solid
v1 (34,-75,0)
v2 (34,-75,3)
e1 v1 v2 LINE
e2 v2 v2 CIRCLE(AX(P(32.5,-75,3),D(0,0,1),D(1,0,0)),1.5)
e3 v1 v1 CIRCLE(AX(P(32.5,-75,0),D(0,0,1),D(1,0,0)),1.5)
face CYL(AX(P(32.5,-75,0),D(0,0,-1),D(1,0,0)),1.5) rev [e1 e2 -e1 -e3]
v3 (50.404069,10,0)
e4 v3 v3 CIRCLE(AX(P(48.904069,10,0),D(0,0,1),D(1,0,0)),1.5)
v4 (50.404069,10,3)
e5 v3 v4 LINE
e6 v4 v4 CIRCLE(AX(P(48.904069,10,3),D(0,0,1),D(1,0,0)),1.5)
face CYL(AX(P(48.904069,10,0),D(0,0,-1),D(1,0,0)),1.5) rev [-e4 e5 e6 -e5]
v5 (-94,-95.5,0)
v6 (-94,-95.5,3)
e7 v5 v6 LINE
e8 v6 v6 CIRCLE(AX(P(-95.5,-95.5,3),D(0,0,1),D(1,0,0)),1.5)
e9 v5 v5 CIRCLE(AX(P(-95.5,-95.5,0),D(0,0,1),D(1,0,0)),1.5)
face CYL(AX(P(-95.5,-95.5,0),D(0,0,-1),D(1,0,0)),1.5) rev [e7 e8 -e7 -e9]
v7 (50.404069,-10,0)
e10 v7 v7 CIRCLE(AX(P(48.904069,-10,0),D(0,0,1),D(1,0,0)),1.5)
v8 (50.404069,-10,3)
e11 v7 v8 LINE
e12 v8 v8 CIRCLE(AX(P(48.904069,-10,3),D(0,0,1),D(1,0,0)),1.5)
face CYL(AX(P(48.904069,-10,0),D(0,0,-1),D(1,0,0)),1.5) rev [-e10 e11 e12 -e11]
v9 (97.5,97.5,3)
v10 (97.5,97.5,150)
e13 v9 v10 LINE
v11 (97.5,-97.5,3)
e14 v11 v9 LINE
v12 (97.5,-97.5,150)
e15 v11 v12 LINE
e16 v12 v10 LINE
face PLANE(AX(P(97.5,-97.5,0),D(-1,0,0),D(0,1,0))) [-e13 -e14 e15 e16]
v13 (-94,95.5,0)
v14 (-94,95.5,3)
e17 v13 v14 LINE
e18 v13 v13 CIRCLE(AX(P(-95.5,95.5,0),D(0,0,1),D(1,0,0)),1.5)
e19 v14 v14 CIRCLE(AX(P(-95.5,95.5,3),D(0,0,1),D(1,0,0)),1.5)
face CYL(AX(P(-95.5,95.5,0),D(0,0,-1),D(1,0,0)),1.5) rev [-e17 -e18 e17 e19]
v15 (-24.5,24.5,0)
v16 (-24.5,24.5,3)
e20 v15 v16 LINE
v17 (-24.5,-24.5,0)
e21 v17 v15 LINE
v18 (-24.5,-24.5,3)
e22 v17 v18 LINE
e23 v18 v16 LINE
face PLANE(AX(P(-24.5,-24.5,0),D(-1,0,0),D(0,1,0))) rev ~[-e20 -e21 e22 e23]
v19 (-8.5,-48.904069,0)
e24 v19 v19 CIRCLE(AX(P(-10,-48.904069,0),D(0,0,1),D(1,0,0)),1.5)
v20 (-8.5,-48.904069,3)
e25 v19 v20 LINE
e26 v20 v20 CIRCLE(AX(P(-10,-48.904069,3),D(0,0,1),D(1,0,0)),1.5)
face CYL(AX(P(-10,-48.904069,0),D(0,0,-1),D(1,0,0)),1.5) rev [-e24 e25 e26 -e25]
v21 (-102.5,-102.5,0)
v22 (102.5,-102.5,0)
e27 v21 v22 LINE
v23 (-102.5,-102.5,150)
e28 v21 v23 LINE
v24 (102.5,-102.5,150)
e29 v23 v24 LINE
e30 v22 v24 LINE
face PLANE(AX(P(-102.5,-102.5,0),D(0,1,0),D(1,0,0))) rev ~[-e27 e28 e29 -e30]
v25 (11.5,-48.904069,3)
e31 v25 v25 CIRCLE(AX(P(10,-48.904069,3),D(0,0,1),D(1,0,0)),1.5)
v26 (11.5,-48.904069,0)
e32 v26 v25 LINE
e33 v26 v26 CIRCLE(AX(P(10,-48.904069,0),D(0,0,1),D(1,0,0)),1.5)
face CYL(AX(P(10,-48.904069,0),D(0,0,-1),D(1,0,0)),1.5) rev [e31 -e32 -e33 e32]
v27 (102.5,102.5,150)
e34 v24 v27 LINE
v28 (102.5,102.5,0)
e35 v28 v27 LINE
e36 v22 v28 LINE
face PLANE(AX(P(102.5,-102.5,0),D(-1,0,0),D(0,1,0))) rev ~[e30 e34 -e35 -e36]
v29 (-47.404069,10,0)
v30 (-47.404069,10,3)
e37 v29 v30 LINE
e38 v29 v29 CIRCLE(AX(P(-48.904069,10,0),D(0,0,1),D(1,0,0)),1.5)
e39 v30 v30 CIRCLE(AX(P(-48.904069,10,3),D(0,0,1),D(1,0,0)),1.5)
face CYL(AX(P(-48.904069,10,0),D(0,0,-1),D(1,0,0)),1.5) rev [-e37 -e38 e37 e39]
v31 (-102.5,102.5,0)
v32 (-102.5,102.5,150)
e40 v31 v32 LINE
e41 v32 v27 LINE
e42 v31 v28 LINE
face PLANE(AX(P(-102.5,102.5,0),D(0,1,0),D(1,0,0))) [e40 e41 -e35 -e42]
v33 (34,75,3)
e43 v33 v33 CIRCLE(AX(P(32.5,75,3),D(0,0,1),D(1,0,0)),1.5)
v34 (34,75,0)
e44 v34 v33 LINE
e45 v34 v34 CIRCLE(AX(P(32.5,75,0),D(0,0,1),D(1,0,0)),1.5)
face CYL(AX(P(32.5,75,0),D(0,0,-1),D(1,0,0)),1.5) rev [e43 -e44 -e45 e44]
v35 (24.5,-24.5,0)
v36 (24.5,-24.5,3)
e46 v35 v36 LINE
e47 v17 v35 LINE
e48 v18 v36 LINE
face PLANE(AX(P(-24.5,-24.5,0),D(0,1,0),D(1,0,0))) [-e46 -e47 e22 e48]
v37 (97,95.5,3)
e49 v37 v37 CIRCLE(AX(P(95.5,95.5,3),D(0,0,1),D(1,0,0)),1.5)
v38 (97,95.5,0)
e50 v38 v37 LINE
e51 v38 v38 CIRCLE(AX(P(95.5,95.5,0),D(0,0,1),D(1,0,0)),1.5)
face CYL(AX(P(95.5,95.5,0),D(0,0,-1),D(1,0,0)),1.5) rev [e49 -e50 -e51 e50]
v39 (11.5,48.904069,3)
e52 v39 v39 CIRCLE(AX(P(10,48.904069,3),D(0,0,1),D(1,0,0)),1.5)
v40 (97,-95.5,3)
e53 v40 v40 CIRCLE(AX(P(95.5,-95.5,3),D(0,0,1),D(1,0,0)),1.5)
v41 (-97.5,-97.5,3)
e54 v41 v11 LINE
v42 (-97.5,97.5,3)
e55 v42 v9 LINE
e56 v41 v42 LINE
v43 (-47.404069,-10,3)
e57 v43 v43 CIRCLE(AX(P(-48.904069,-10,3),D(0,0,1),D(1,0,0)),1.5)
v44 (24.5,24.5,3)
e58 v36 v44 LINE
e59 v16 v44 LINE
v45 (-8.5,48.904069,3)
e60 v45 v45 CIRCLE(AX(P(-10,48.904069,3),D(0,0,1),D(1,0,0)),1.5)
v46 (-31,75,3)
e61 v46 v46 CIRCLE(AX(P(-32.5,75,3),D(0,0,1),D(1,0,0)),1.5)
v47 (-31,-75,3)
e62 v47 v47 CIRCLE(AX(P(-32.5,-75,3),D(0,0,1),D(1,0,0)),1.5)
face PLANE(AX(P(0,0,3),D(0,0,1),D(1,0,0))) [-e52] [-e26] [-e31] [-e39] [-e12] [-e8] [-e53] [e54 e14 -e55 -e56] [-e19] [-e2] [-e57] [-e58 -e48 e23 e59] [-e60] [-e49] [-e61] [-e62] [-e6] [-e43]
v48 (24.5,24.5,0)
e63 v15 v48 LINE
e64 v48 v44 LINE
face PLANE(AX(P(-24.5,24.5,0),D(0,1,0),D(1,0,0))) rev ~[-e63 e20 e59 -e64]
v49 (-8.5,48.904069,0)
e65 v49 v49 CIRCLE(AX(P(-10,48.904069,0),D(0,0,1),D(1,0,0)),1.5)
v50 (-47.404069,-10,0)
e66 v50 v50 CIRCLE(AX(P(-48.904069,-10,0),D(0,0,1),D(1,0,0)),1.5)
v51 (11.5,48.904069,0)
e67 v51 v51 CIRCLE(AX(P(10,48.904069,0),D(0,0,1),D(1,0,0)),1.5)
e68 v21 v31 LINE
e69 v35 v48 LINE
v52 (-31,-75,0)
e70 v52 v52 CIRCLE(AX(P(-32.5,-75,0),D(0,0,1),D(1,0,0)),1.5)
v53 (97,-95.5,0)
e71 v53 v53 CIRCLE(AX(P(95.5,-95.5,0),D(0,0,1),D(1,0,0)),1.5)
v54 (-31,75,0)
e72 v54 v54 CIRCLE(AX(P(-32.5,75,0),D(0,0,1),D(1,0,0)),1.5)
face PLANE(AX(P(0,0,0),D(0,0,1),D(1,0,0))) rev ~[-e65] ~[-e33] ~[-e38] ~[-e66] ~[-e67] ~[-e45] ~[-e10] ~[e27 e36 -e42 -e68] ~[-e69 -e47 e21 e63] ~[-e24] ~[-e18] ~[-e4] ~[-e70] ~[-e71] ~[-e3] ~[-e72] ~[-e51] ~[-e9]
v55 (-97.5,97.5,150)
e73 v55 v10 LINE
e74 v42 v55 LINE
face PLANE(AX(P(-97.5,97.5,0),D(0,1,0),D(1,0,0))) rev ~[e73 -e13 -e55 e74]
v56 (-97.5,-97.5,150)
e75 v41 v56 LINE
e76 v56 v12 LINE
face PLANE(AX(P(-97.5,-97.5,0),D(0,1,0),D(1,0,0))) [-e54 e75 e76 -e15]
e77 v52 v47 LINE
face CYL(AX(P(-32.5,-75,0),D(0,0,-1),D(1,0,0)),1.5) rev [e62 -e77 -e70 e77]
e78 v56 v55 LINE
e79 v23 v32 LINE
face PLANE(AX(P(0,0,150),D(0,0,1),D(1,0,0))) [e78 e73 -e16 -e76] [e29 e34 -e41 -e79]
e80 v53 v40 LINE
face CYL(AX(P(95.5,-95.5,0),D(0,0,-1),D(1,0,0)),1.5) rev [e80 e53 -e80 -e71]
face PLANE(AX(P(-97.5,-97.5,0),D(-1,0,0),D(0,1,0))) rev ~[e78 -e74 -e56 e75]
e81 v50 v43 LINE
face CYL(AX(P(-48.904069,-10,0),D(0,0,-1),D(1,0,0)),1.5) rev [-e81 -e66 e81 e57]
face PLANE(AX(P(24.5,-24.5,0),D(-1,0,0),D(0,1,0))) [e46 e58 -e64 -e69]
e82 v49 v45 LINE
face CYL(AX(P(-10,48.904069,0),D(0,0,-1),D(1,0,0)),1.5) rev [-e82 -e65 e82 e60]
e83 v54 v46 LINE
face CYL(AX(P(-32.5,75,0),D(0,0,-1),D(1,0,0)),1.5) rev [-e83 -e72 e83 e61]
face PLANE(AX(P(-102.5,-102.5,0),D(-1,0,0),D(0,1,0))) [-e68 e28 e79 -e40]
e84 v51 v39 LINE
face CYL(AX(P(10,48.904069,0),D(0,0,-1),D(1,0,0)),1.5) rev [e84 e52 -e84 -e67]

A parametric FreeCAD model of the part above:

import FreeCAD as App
import Part
import Sketcher
from FreeCAD import Vector
Q = App.Units.Quantity


def add_polygon(sketch, points):
    """Adds a closed chain of lines whose ends are joined by coincident constraints."""
    first, n = sketch.GeometryCount, len(points)
    for a, b in zip(points, points[1:] + points[:1]):
        sketch.addGeometry(Part.LineSegment(App.Vector(*a, 0), App.Vector(*b, 0)), False)
    for i in range(n):
        sketch.addConstraint(Sketcher.Constraint("Coincident", first + i, 2, first + (i + 1) % n, 1))

doc = App.newDocument("Part")
body = doc.addObject("PartDesign::Body", "Body")

sketch1 = body.newObject("Sketcher::SketchObject", "Sketch")
sketch1.AttachmentSupport = (doc.getObject("XY_Plane"), [""])
sketch1.MapMode = "FlatFace"
add_polygon(sketch1, [(-102, 102), (-102, -102), (102, -102), (102, 102)])
add_polygon(sketch1, [(98, -98), (-98, -98), (-98, 98), (98, 98)])
sketch1.addConstraint(Sketcher.Constraint("Vertical", 0))
sketch1.addConstraint(Sketcher.Constraint("Horizontal", 1))
sketch1.addConstraint(Sketcher.Constraint("Vertical", 2))
sketch1.addConstraint(Sketcher.Constraint("Horizontal", 3))
sketch1.addConstraint(Sketcher.Constraint("Horizontal", 4))
sketch1.addConstraint(Sketcher.Constraint("Vertical", 5))
sketch1.addConstraint(Sketcher.Constraint("Horizontal", 6))
sketch1.addConstraint(Sketcher.Constraint("Vertical", 7))
sketch1.addConstraint(Sketcher.Constraint("Symmetric", 0, 2, 2, 2, -1, 1))
sketch1.addConstraint(Sketcher.Constraint("Symmetric", 4, 2, 6, 2, -1, 1))
sketch1.addConstraint(Sketcher.Constraint("Equal", 3, 0))
sketch1.addConstraint(Sketcher.Constraint("Equal", 6, 5))
sketch1.addConstraint(Sketcher.Constraint("DistanceX", 1, 1, 1, 2, Q("205 mm")))
sketch1.addConstraint(Sketcher.Constraint("DistanceX", 4, 2, 4, 1, Q("195 mm")))
pad1 = body.newObject("PartDesign::Pad", "Pad")
pad1.Profile = sketch1
pad1.Length = 150

sketch2 = body.newObject("Sketcher::SketchObject", "Sketch001")
sketch2.AttachmentSupport = (doc.getObject("XY_Plane"), [""])
sketch2.MapMode = "FlatFace"
add_polygon(sketch2, [(-97.5, 97.5), (-97.5, -97.5), (97.5, -97.5), (97.5, 97.5)])
sketch2.addGeometry(Part.Circle(Vector(-95.5, -95.5, 0), Vector(0, 0, 1), 1.5), False)
sketch2.addGeometry(Part.Circle(Vector(-32.5, -75, 0), Vector(0, 0, 1), 1.5), False)
sketch2.addGeometry(Part.Circle(Vector(-10, -48.9, 0), Vector(0, 0, 1), 1.5), False)
sketch2.addGeometry(Part.Circle(Vector(-48.9, -10, 0), Vector(0, 0, 1), 1.5), False)
sketch2.addGeometry(Part.Circle(Vector(32.5, -75, 0), Vector(0, 0, 1), 1.5), False)
sketch2.addGeometry(Part.Circle(Vector(10, -48.9, 0), Vector(0, 0, 1), 1.5), False)
sketch2.addGeometry(Part.Circle(Vector(95.5, -95.5, 0), Vector(0, 0, 1), 1.5), False)
sketch2.addGeometry(Part.Circle(Vector(48.9, -10, 0), Vector(0, 0, 1), 1.5), False)
sketch2.addGeometry(Part.Circle(Vector(-48.9, 10, 0), Vector(0, 0, 1), 1.5), False)
sketch2.addGeometry(Part.Circle(Vector(-95.5, 95.5, 0), Vector(0, 0, 1), 1.5), False)
sketch2.addGeometry(Part.Circle(Vector(-10, 48.9, 0), Vector(0, 0, 1), 1.5), False)
sketch2.addGeometry(Part.Circle(Vector(-32.5, 75, 0), Vector(0, 0, 1), 1.5), False)
add_polygon(sketch2, [(24.5, -24.5), (-24.5, -24.5), (-24.5, 24.5), (24.5, 24.5)])
sketch2.addGeometry(Part.Circle(Vector(48.9, 10, 0), Vector(0, 0, 1), 1.5), False)
sketch2.addGeometry(Part.Circle(Vector(10, 48.9, 0), Vector(0, 0, 1), 1.5), False)
sketch2.addGeometry(Part.Circle(Vector(32.5, 75, 0), Vector(0, 0, 1), 1.5), False)
sketch2.addGeometry(Part.Circle(Vector(95.5, 95.5, 0), Vector(0, 0, 1), 1.5), False)
sketch2.addConstraint(Sketcher.Constraint("Vertical", 0))
sketch2.addConstraint(Sketcher.Constraint("Horizontal", 1))
sketch2.addConstraint(Sketcher.Constraint("Vertical", 2))
sketch2.addConstraint(Sketcher.Constraint("Horizontal", 3))
sketch2.addConstraint(Sketcher.Constraint("Horizontal", 16))
sketch2.addConstraint(Sketcher.Constraint("Vertical", 17))
sketch2.addConstraint(Sketcher.Constraint("Horizontal", 18))
sketch2.addConstraint(Sketcher.Constraint("Vertical", 19))
sketch2.addConstraint(Sketcher.Constraint("Equal", 4, 5))
sketch2.addConstraint(Sketcher.Constraint("Equal", 5, 6))
sketch2.addConstraint(Sketcher.Constraint("Equal", 6, 7))
sketch2.addConstraint(Sketcher.Constraint("Equal", 7, 8))
sketch2.addConstraint(Sketcher.Constraint("Equal", 8, 9))
sketch2.addConstraint(Sketcher.Constraint("Equal", 9, 10))
sketch2.addConstraint(Sketcher.Constraint("Equal", 10, 11))
sketch2.addConstraint(Sketcher.Constraint("Equal", 11, 12))
sketch2.addConstraint(Sketcher.Constraint("Equal", 12, 13))
sketch2.addConstraint(Sketcher.Constraint("Equal", 13, 14))
sketch2.addConstraint(Sketcher.Constraint("Equal", 14, 15))
sketch2.addConstraint(Sketcher.Constraint("Equal", 15, 20))
sketch2.addConstraint(Sketcher.Constraint("Equal", 20, 21))
sketch2.addConstraint(Sketcher.Constraint("Equal", 21, 22))
sketch2.addConstraint(Sketcher.Constraint("Equal", 22, 23))
sketch2.addConstraint(Sketcher.Constraint("Symmetric", 11, 3, 12, 3, -1, 1))
sketch2.addConstraint(Sketcher.Constraint("Symmetric", 10, 3, 13, 3, -1, 1))
sketch2.addConstraint(Sketcher.Constraint("Symmetric", 9, 3, 14, 3, -1, 1))
sketch2.addConstraint(Sketcher.Constraint("Symmetric", 8, 3, 15, 3, -1, 1))
sketch2.addConstraint(Sketcher.Constraint("Symmetric", 7, 3, 20, 3, -1, 1))
sketch2.addConstraint(Sketcher.Constraint("Symmetric", 6, 3, 21, 3, -1, 1))
sketch2.addConstraint(Sketcher.Constraint("Symmetric", 5, 3, 22, 3, -1, 1))
sketch2.addConstraint(Sketcher.Constraint("Symmetric", 4, 3, 23, 3, -1, 1))
sketch2.addConstraint(Sketcher.Constraint("Symmetric", 0, 2, 2, 2, -1, 1))
sketch2.addConstraint(Sketcher.Constraint("Symmetric", 16, 2, 18, 2, -1, 1))
sketch2.addConstraint(Sketcher.Constraint("Symmetric", 5, 3, 8, 3, -2))
sketch2.addConstraint(Sketcher.Constraint("Symmetric", 6, 3, 9, 3, -2))
sketch2.addConstraint(Sketcher.Constraint("Symmetric", 4, 3, 10, 3, -2))
sketch2.addConstraint(Sketcher.Constraint("Symmetric", 7, 3, 11, 3, -2))
sketch2.addConstraint(Sketcher.Constraint("Equal", 3, 0))
sketch2.addConstraint(Sketcher.Constraint("Equal", 18, 17))
sketch2.addConstraint(Sketcher.Constraint("Diameter", 4, Q("3 mm")))
sketch2.addConstraint(Sketcher.Constraint("DistanceX", 1, 1, 1, 2, Q("195 mm")))
sketch2.addConstraint(Sketcher.Constraint("DistanceX", 16, 2, 16, 1, Q("49 mm")))
sketch2.addConstraint(Sketcher.Constraint("DistanceY", 5, 3, -1, 1, Q("75 mm")))
sketch2.addConstraint(Sketcher.Constraint("DistanceX", 6, 3, -1, 1, Q("10 mm")))
sketch2.addConstraint(Sketcher.Constraint("DistanceY", 7, 3, -1, 1, Q("10 mm")))
sketch2.addConstraint(Sketcher.Constraint("DistanceX", 4, 3, 5, 3, Q("63 mm")))
sketch2.addConstraint(Sketcher.Constraint("DistanceX", 5, 3, 8, 3, Q("65 mm")))
sketch2.addConstraint(Sketcher.Constraint("DistanceY", 0, 2, 4, 3, Q("2 mm")))
sketch2.addConstraint(Sketcher.Constraint("DistanceY", 6, 3, -1, 1, Q("48.904069 mm")))
sketch2.addConstraint(Sketcher.Constraint("DistanceX", 7, 3, -1, 1, Q("48.904069 mm")))
pad2 = body.newObject("PartDesign::Pad", "Pad001")
pad2.Profile = sketch2
pad2.Length = 3

doc.recompute()
